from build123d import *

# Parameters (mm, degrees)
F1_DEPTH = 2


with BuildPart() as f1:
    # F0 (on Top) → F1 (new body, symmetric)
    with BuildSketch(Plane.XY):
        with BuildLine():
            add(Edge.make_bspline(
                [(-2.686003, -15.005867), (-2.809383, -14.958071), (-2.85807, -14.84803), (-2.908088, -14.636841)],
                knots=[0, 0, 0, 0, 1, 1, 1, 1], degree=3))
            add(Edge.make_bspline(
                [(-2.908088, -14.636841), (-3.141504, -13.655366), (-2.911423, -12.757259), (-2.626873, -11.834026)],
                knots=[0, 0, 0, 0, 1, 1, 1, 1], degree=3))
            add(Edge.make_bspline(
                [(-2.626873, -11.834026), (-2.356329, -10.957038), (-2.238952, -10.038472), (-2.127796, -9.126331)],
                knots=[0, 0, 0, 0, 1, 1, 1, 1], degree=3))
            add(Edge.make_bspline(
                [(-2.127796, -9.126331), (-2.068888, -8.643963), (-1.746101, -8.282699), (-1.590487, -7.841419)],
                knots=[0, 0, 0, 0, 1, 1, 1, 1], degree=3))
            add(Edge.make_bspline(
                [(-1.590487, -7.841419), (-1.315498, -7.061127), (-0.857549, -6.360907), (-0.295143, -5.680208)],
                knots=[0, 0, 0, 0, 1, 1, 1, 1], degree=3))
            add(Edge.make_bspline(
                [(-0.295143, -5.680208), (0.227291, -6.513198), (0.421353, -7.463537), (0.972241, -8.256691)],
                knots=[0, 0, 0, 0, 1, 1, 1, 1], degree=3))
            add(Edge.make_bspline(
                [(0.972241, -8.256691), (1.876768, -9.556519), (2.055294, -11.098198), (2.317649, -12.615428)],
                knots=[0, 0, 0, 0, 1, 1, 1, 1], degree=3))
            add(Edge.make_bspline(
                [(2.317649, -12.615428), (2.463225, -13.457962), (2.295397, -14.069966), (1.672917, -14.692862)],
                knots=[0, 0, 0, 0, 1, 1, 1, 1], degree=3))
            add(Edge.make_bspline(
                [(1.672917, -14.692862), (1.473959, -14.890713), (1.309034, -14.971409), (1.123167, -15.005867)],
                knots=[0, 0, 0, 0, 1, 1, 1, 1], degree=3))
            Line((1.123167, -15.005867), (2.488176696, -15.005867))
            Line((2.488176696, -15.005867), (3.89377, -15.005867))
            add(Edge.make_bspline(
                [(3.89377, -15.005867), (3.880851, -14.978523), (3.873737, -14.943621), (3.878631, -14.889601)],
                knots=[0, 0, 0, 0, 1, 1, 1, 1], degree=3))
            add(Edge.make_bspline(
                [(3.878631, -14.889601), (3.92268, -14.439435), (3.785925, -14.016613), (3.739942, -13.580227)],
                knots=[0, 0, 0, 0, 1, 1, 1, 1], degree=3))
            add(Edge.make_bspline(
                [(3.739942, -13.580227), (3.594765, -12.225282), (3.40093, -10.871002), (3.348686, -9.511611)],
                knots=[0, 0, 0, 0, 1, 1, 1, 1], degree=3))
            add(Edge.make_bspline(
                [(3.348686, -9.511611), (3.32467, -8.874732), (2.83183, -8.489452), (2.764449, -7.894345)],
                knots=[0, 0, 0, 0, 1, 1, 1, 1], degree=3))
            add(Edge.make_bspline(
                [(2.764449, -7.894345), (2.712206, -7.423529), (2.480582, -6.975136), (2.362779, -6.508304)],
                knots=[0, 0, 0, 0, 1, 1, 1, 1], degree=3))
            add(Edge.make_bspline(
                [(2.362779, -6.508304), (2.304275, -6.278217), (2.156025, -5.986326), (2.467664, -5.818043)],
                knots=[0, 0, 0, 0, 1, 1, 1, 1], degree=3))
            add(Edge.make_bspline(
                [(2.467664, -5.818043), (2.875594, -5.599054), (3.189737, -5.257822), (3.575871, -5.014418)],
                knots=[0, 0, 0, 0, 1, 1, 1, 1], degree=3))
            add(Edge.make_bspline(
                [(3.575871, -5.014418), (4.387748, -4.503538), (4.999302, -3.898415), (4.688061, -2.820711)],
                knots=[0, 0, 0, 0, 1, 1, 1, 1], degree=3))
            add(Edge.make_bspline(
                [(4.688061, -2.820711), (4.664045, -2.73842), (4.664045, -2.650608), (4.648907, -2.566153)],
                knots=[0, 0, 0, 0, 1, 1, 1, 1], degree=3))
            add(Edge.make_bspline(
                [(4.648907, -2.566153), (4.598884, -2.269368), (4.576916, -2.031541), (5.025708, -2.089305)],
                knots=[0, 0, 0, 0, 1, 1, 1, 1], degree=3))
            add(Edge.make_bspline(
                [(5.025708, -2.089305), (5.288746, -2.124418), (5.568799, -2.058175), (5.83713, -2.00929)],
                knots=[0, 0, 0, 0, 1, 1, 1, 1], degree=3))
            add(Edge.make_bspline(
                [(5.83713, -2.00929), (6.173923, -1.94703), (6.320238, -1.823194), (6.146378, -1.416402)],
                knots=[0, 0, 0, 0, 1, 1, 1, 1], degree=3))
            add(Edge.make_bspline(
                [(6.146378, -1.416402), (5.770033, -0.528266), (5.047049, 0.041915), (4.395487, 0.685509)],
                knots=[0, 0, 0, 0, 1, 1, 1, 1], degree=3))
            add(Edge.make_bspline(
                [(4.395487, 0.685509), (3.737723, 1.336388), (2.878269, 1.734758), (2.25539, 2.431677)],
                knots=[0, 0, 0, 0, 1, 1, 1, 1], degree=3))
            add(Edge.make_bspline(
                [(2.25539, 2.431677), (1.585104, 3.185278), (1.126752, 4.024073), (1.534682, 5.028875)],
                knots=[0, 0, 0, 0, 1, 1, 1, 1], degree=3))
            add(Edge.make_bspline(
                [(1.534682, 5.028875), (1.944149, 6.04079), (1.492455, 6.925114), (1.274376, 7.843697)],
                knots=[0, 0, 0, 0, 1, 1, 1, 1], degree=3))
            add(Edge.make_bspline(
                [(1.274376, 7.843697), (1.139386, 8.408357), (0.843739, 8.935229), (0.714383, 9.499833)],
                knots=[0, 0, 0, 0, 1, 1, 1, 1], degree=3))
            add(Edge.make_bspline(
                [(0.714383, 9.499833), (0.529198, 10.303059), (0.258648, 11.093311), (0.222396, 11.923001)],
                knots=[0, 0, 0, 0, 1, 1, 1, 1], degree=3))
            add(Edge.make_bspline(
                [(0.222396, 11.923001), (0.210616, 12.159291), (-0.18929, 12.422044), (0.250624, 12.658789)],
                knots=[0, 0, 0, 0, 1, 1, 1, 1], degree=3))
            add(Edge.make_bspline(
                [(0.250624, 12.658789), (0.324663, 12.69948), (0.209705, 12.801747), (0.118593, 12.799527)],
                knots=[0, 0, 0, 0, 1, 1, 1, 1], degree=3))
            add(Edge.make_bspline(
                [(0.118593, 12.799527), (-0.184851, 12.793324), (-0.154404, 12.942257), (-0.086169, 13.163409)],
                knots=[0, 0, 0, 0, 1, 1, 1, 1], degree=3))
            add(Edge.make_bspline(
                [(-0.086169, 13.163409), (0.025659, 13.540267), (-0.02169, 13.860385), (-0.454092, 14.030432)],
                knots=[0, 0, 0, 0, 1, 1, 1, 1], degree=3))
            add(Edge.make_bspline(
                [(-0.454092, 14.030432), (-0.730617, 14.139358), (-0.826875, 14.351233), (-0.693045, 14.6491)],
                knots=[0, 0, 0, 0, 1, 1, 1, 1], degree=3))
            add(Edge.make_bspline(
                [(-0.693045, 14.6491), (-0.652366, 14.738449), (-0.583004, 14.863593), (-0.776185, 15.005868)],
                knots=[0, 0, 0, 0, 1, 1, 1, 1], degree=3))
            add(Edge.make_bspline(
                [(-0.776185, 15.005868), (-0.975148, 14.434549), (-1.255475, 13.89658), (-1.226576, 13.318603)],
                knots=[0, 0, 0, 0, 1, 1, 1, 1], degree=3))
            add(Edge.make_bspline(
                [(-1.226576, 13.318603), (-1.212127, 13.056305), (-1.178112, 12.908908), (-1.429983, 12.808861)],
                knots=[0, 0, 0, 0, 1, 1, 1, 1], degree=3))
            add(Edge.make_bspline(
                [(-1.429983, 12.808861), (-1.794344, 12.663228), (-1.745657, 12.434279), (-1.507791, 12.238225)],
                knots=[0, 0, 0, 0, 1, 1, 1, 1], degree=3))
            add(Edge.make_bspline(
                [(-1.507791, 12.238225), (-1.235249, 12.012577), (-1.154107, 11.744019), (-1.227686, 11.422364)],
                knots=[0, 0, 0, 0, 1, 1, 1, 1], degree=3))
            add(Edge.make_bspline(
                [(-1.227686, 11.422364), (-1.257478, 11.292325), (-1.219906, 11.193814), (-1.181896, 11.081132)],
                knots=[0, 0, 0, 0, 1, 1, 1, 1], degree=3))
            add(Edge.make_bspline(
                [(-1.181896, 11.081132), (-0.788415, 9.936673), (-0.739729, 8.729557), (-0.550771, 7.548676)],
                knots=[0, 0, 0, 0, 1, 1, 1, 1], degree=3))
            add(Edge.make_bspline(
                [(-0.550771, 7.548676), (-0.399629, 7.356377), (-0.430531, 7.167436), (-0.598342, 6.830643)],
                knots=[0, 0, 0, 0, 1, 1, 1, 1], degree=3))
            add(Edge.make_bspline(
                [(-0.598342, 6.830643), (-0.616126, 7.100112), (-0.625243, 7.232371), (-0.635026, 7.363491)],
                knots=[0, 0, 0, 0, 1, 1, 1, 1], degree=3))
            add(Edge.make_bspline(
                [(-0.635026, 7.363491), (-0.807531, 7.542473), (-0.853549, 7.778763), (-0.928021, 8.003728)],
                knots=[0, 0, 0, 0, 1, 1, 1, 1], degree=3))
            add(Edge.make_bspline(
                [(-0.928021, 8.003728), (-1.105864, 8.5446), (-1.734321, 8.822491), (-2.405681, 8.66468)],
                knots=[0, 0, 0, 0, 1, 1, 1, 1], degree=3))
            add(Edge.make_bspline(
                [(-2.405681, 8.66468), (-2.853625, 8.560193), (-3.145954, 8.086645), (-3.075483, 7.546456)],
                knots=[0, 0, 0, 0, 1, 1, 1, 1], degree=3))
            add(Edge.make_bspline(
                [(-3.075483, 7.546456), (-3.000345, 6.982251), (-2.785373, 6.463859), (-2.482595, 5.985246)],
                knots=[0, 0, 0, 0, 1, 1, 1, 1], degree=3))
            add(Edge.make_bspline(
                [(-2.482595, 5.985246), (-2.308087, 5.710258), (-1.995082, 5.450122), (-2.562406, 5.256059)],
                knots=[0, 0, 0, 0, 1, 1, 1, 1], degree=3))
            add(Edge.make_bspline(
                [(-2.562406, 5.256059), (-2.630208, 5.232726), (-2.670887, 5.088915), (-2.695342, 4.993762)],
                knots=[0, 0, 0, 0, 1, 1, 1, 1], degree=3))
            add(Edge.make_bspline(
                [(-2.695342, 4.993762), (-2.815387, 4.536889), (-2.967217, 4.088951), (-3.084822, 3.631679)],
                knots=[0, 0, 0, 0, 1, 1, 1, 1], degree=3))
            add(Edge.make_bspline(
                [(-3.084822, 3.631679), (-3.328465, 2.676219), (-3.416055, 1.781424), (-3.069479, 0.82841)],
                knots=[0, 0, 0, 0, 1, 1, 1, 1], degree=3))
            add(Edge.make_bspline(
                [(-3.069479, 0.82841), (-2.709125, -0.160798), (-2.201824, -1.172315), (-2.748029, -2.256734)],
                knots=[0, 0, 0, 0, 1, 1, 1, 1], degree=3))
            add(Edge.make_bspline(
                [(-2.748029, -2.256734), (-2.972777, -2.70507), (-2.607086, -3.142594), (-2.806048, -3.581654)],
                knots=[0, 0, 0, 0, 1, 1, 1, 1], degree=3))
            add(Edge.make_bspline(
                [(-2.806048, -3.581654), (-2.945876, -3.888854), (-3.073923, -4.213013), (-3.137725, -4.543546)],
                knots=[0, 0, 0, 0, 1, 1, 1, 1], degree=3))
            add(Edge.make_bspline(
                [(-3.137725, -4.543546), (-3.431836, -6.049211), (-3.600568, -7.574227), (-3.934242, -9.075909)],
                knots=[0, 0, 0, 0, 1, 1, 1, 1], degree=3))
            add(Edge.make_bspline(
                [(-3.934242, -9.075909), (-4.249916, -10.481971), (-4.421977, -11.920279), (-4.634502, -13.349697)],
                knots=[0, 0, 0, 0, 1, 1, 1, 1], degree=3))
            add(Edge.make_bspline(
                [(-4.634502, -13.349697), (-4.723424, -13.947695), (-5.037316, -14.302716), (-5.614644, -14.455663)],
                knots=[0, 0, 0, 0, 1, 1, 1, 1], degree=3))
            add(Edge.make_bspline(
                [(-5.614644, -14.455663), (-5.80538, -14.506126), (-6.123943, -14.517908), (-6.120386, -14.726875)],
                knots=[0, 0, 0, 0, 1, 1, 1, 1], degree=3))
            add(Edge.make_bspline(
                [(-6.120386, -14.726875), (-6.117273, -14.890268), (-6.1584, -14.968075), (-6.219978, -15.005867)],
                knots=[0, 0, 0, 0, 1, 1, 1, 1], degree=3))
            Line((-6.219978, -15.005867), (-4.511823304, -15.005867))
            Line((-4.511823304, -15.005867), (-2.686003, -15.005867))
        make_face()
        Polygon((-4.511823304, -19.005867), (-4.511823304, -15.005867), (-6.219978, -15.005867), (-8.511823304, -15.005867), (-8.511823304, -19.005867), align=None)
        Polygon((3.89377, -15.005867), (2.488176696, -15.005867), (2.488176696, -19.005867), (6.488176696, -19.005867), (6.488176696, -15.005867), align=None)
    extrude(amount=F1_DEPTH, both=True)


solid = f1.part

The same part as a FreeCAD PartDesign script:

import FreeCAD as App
import Part
import Sketcher

doc = App.newDocument("Part")
params = doc.addObject("Spreadsheet::Sheet", "Params")
for row, (alias, value) in enumerate([
    ("sketch1_width", "4 mm"),
    ("pad1_length", "4 mm"),
], start=1):
    params.set(f"A{row}", alias)
    params.set(f"B{row}", "=" + value)
    params.setAlias(f"B{row}", alias)

body = doc.addObject("PartDesign::Body", "Body")

sketch1 = body.newObject("Sketcher::SketchObject", "Sketch")
sketch1.AttachmentSupport = (doc.getObject("XY_Plane"), [""])
sketch1.MapMode = "FlatFace"
sketch1.addGeometry([
    Part.BSplineCurve([App.Vector(-2.686003, -15.005867, 0), App.Vector(-2.809383, -14.958071, 0), App.Vector(-2.85807, -14.84803, 0), App.Vector(-2.908088, -14.636841, 0)], [4, 4], [0, 1], False, 3, [1, 1, 1, 1], False),
    Part.BSplineCurve([App.Vector(-2.908088, -14.636841, 0), App.Vector(-3.141504, -13.655366, 0), App.Vector(-2.911423, -12.757259, 0), App.Vector(-2.626873, -11.834026, 0)], [4, 4], [0, 1], False, 3, [1, 1, 1, 1], False),
    Part.BSplineCurve([App.Vector(-2.626873, -11.834026, 0), App.Vector(-2.356329, -10.957038, 0), App.Vector(-2.238952, -10.038472, 0), App.Vector(-2.127796, -9.126331, 0)], [4, 4], [0, 1], False, 3, [1, 1, 1, 1], False),
    Part.BSplineCurve([App.Vector(-2.127796, -9.126331, 0), App.Vector(-2.068888, -8.643963, 0), App.Vector(-1.746101, -8.282699, 0), App.Vector(-1.590487, -7.841419, 0)], [4, 4], [0, 1], False, 3, [1, 1, 1, 1], False),
    Part.BSplineCurve([App.Vector(-1.590487, -7.841419, 0), App.Vector(-1.315498, -7.061127, 0), App.Vector(-0.857549, -6.360907, 0), App.Vector(-0.295143, -5.680208, 0)], [4, 4], [0, 1], False, 3, [1, 1, 1, 1], False),
    Part.BSplineCurve([App.Vector(-0.295143, -5.680208, 0), App.Vector(0.227291, -6.513198, 0), App.Vector(0.421353, -7.463537, 0), App.Vector(0.972241, -8.256691, 0)], [4, 4], [0, 1], False, 3, [1, 1, 1, 1], False),
    Part.BSplineCurve([App.Vector(0.972241, -8.256691, 0), App.Vector(1.876768, -9.556519, 0), App.Vector(2.055294, -11.098198, 0), App.Vector(2.317649, -12.615428, 0)], [4, 4], [0, 1], False, 3, [1, 1, 1, 1], False),
    Part.BSplineCurve([App.Vector(2.317649, -12.615428, 0), App.Vector(2.463225, -13.457962, 0), App.Vector(2.295397, -14.069966, 0), App.Vector(1.672917, -14.692862, 0)], [4, 4], [0, 1], False, 3, [1, 1, 1, 1], False),
    Part.BSplineCurve([App.Vector(1.672917, -14.692862, 0), App.Vector(1.473959, -14.890713, 0), App.Vector(1.309034, -14.971409, 0), App.Vector(1.123167, -15.005867, 0)], [4, 4], [0, 1], False, 3, [1, 1, 1, 1], False),
    Part.LineSegment(App.Vector(1.123167, -15.005867, 0), App.Vector(2.488177, -15.005867, 0)),
    Part.LineSegment(App.Vector(2.488177, -15.005867, 0), App.Vector(2.488177, -19.005867, 0)),
    Part.LineSegment(App.Vector(2.488177, -19.005867, 0), App.Vector(6.488177, -19.005867, 0)),
    Part.LineSegment(App.Vector(6.488177, -19.005867, 0), App.Vector(6.488177, -15.005867, 0)),
    Part.LineSegment(App.Vector(6.488177, -15.005867, 0), App.Vector(3.89377, -15.005867, 0)),
    Part.BSplineCurve([App.Vector(3.89377, -15.005867, 0), App.Vector(3.880851, -14.978523, 0), App.Vector(3.873737, -14.943621, 0), App.Vector(3.878631, -14.889601, 0)], [4, 4], [0, 1], False, 3, [1, 1, 1, 1], False),
    Part.BSplineCurve([App.Vector(3.878631, -14.889601, 0), App.Vector(3.92268, -14.439435, 0), App.Vector(3.785925, -14.016613, 0), App.Vector(3.739942, -13.580227, 0)], [4, 4], [0, 1], False, 3, [1, 1, 1, 1], False),
    Part.BSplineCurve([App.Vector(3.739942, -13.580227, 0), App.Vector(3.594765, -12.225282, 0), App.Vector(3.40093, -10.871002, 0), App.Vector(3.348686, -9.511611, 0)], [4, 4], [0, 1], False, 3, [1, 1, 1, 1], False),
    Part.BSplineCurve([App.Vector(3.348686, -9.511611, 0), App.Vector(3.32467, -8.874732, 0), App.Vector(2.83183, -8.489452, 0), App.Vector(2.764449, -7.894345, 0)], [4, 4], [0, 1], False, 3, [1, 1, 1, 1], False),
    Part.BSplineCurve([App.Vector(2.764449, -7.894345, 0), App.Vector(2.712206, -7.423529, 0), App.Vector(2.480582, -6.975136, 0), App.Vector(2.362779, -6.508304, 0)], [4, 4], [0, 1], False, 3, [1, 1, 1, 1], False),
    Part.BSplineCurve([App.Vector(2.362779, -6.508304, 0), App.Vector(2.304275, -6.278217, 0), App.Vector(2.156025, -5.986326, 0), App.Vector(2.467664, -5.818043, 0)], [4, 4], [0, 1], False, 3, [1, 1, 1, 1], False),
    Part.BSplineCurve([App.Vector(2.467664, -5.818043, 0), App.Vector(2.875594, -5.599054, 0), App.Vector(3.189737, -5.257822, 0), App.Vector(3.575871, -5.014418, 0)], [4, 4], [0, 1], False, 3, [1, 1, 1, 1], False),
    Part.BSplineCurve([App.Vector(3.575871, -5.014418, 0), App.Vector(4.387748, -4.503538, 0), App.Vector(4.999302, -3.898415, 0), App.Vector(4.688061, -2.820711, 0)], [4, 4], [0, 1], False, 3, [1, 1, 1, 1], False),
    Part.BSplineCurve([App.Vector(4.688061, -2.820711, 0), App.Vector(4.664045, -2.73842, 0), App.Vector(4.664045, -2.650608, 0), App.Vector(4.648907, -2.566153, 0)], [4, 4], [0, 1], False, 3, [1, 1, 1, 1], False),
    Part.BSplineCurve([App.Vector(4.648907, -2.566153, 0), App.Vector(4.598884, -2.269368, 0), App.Vector(4.576916, -2.031541, 0), App.Vector(5.025708, -2.089305, 0)], [4, 4], [0, 1], False, 3, [1, 1, 1, 1], False),
    Part.BSplineCurve([App.Vector(5.025708, -2.089305, 0), App.Vector(5.288746, -2.124418, 0), App.Vector(5.568799, -2.058175, 0), App.Vector(5.83713, -2.00929, 0)], [4, 4], [0, 1], False, 3, [1, 1, 1, 1], False),
    Part.BSplineCurve([App.Vector(5.83713, -2.00929, 0), App.Vector(6.173923, -1.94703, 0), App.Vector(6.320238, -1.823194, 0), App.Vector(6.146378, -1.416402, 0)], [4, 4], [0, 1], False, 3, [1, 1, 1, 1], False),
    Part.BSplineCurve([App.Vector(6.146378, -1.416402, 0), App.Vector(5.770033, -0.528266, 0), App.Vector(5.047049, 0.041915, 0), App.Vector(4.395487, 0.685509, 0)], [4, 4], [0, 1], False, 3, [1, 1, 1, 1], False),
    Part.BSplineCurve([App.Vector(4.395487, 0.685509, 0), App.Vector(3.737723, 1.336388, 0), App.Vector(2.878269, 1.734758, 0), App.Vector(2.25539, 2.431677, 0)], [4, 4], [0, 1], False, 3, [1, 1, 1, 1], False),
    Part.BSplineCurve([App.Vector(2.25539, 2.431677, 0), App.Vector(1.585104, 3.185278, 0), App.Vector(1.126752, 4.024073, 0), App.Vector(1.534682, 5.028875, 0)], [4, 4], [0, 1], False, 3, [1, 1, 1, 1], False),
    Part.BSplineCurve([App.Vector(1.534682, 5.028875, 0), App.Vector(1.944149, 6.04079, 0), App.Vector(1.492455, 6.925114, 0), App.Vector(1.274376, 7.843697, 0)], [4, 4], [0, 1], False, 3, [1, 1, 1, 1], False),
    Part.BSplineCurve([App.Vector(1.274376, 7.843697, 0), App.Vector(1.139386, 8.408357, 0), App.Vector(0.843739, 8.935229, 0), App.Vector(0.714383, 9.499833, 0)], [4, 4], [0, 1], False, 3, [1, 1, 1, 1], False),
    Part.BSplineCurve([App.Vector(0.714383, 9.499833, 0), App.Vector(0.529198, 10.303059, 0), App.Vector(0.258648, 11.093311, 0), App.Vector(0.222396, 11.923001, 0)], [4, 4], [0, 1], False, 3, [1, 1, 1, 1], False),
    Part.BSplineCurve([App.Vector(0.222396, 11.923001, 0), App.Vector(0.210616, 12.159291, 0), App.Vector(-0.18929, 12.422044, 0), App.Vector(0.250624, 12.658789, 0)], [4, 4], [0, 1], False, 3, [1, 1, 1, 1], False),
    Part.BSplineCurve([App.Vector(0.250624, 12.658789, 0), App.Vector(0.324663, 12.69948, 0), App.Vector(0.209705, 12.801747, 0), App.Vector(0.118593, 12.799527, 0)], [4, 4], [0, 1], False, 3, [1, 1, 1, 1], False),
    Part.BSplineCurve([App.Vector(0.118593, 12.799527, 0), App.Vector(-0.184851, 12.793324, 0), App.Vector(-0.154404, 12.942257, 0), App.Vector(-0.086169, 13.163409, 0)], [4, 4], [0, 1], False, 3, [1, 1, 1, 1], False),
    Part.BSplineCurve([App.Vector(-0.086169, 13.163409, 0), App.Vector(0.025659, 13.540267, 0), App.Vector(-0.02169, 13.860385, 0), App.Vector(-0.454092, 14.030432, 0)], [4, 4], [0, 1], False, 3, [1, 1, 1, 1], False),
    Part.BSplineCurve([App.Vector(-0.454092, 14.030432, 0), App.Vector(-0.730617, 14.139358, 0), App.Vector(-0.826875, 14.351233, 0), App.Vector(-0.693045, 14.6491, 0)], [4, 4], [0, 1], False, 3, [1, 1, 1, 1], False),
    Part.BSplineCurve([App.Vector(-0.693045, 14.6491, 0), App.Vector(-0.652366, 14.738449, 0), App.Vector(-0.583004, 14.863593, 0), App.Vector(-0.776185, 15.005868, 0)], [4, 4], [0, 1], False, 3, [1, 1, 1, 1], False),
    Part.BSplineCurve([App.Vector(-0.776185, 15.005868, 0), App.Vector(-0.975148, 14.434549, 0), App.Vector(-1.255475, 13.89658, 0), App.Vector(-1.226576, 13.318603, 0)], [4, 4], [0, 1], False, 3, [1, 1, 1, 1], False),
    Part.BSplineCurve([App.Vector(-1.226576, 13.318603, 0), App.Vector(-1.212127, 13.056305, 0), App.Vector(-1.178112, 12.908908, 0), App.Vector(-1.429983, 12.808861, 0)], [4, 4], [0, 1], False, 3, [1, 1, 1, 1], False),
    Part.BSplineCurve([App.Vector(-1.429983, 12.808861, 0), App.Vector(-1.794344, 12.663228, 0), App.Vector(-1.745657, 12.434279, 0), App.Vector(-1.507791, 12.238225, 0)], [4, 4], [0, 1], False, 3, [1, 1, 1, 1], False),
    Part.BSplineCurve([App.Vector(-1.507791, 12.238225, 0), App.Vector(-1.235249, 12.012577, 0), App.Vector(-1.154107, 11.744019, 0), App.Vector(-1.227686, 11.422364, 0)], [4, 4], [0, 1], False, 3, [1, 1, 1, 1], False),
    Part.BSplineCurve([App.Vector(-1.227686, 11.422364, 0), App.Vector(-1.257478, 11.292325, 0), App.Vector(-1.219906, 11.193814, 0), App.Vector(-1.181896, 11.081132, 0)], [4, 4], [0, 1], False, 3, [1, 1, 1, 1], False),
    Part.BSplineCurve([App.Vector(-1.181896, 11.081132, 0), App.Vector(-0.788415, 9.936673, 0), App.Vector(-0.739729, 8.729557, 0), App.Vector(-0.550771, 7.548676, 0)], [4, 4], [0, 1], False, 3, [1, 1, 1, 1], False),
    Part.BSplineCurve([App.Vector(-0.550771, 7.548676, 0), App.Vector(-0.399629, 7.356377, 0), App.Vector(-0.430531, 7.167436, 0), App.Vector(-0.598342, 6.830643, 0)], [4, 4], [0, 1], False, 3, [1, 1, 1, 1], False),
    Part.BSplineCurve([App.Vector(-0.598342, 6.830643, 0), App.Vector(-0.616126, 7.100112, 0), App.Vector(-0.625243, 7.232371, 0), App.Vector(-0.635026, 7.363491, 0)], [4, 4], [0, 1], False, 3, [1, 1, 1, 1], False),
    Part.BSplineCurve([App.Vector(-0.635026, 7.363491, 0), App.Vector(-0.807531, 7.542473, 0), App.Vector(-0.853549, 7.778763, 0), App.Vector(-0.928021, 8.003728, 0)], [4, 4], [0, 1], False, 3, [1, 1, 1, 1], False),
    Part.BSplineCurve([App.Vector(-0.928021, 8.003728, 0), App.Vector(-1.105864, 8.5446, 0), App.Vector(-1.734321, 8.822491, 0), App.Vector(-2.405681, 8.66468, 0)], [4, 4], [0, 1], False, 3, [1, 1, 1, 1], False),
    Part.BSplineCurve([App.Vector(-2.405681, 8.66468, 0), App.Vector(-2.853625, 8.560193, 0), App.Vector(-3.145954, 8.086645, 0), App.Vector(-3.075483, 7.546456, 0)], [4, 4], [0, 1], False, 3, [1, 1, 1, 1], False),
    Part.BSplineCurve([App.Vector(-3.075483, 7.546456, 0), App.Vector(-3.000345, 6.982251, 0), App.Vector(-2.785373, 6.463859, 0), App.Vector(-2.482595, 5.985246, 0)], [4, 4], [0, 1], False, 3, [1, 1, 1, 1], False),
    Part.BSplineCurve([App.Vector(-2.482595, 5.985246, 0), App.Vector(-2.308087, 5.710258, 0), App.Vector(-1.995082, 5.450122, 0), App.Vector(-2.562406, 5.256059, 0)], [4, 4], [0, 1], False, 3, [1, 1, 1, 1], False),
    Part.BSplineCurve([App.Vector(-2.562406, 5.256059, 0), App.Vector(-2.630208, 5.232726, 0), App.Vector(-2.670887, 5.088915, 0), App.Vector(-2.695342, 4.993762, 0)], [4, 4], [0, 1], False, 3, [1, 1, 1, 1], False),
    Part.BSplineCurve([App.Vector(-2.695342, 4.993762, 0), App.Vector(-2.815387, 4.536889, 0), App.Vector(-2.967217, 4.088951, 0), App.Vector(-3.084822, 3.631679, 0)], [4, 4], [0, 1], False, 3, [1, 1, 1, 1], False),
    Part.BSplineCurve([App.Vector(-3.084822, 3.631679, 0), App.Vector(-3.328465, 2.676219, 0), App.Vector(-3.416055, 1.781424, 0), App.Vector(-3.069479, 0.82841, 0)], [4, 4], [0, 1], False, 3, [1, 1, 1, 1], False),
    Part.BSplineCurve([App.Vector(-3.069479, 0.82841, 0), App.Vector(-2.709125, -0.160798, 0), App.Vector(-2.201824, -1.172315, 0), App.Vector(-2.748029, -2.256734, 0)], [4, 4], [0, 1], False, 3, [1, 1, 1, 1], False),
    Part.BSplineCurve([App.Vector(-2.748029, -2.256734, 0), App.Vector(-2.972777, -2.70507, 0), App.Vector(-2.607086, -3.142594, 0), App.Vector(-2.806048, -3.581654, 0)], [4, 4], [0, 1], False, 3, [1, 1, 1, 1], False),
    Part.BSplineCurve([App.Vector(-2.806048, -3.581654, 0), App.Vector(-2.945876, -3.888854, 0), App.Vector(-3.073923, -4.213013, 0), App.Vector(-3.137725, -4.543546, 0)], [4, 4], [0, 1], False, 3, [1, 1, 1, 1], False),
    Part.BSplineCurve([App.Vector(-3.137725, -4.543546, 0), App.Vector(-3.431836, -6.049211, 0), App.Vector(-3.600568, -7.574227, 0), App.Vector(-3.934242, -9.075909, 0)], [4, 4], [0, 1], False, 3, [1, 1, 1, 1], False),
    Part.BSplineCurve([App.Vector(-3.934242, -9.075909, 0), App.Vector(-4.249916, -10.481971, 0), App.Vector(-4.421977, -11.920279, 0), App.Vector(-4.634502, -13.349697, 0)], [4, 4], [0, 1], False, 3, [1, 1, 1, 1], False),
    Part.BSplineCurve([App.Vector(-4.634502, -13.349697, 0), App.Vector(-4.723424, -13.947695, 0), App.Vector(-5.037316, -14.302716, 0), App.Vector(-5.614644, -14.455663, 0)], [4, 4], [0, 1], False, 3, [1, 1, 1, 1], False),
    Part.BSplineCurve([App.Vector(-5.614644, -14.455663, 0), App.Vector(-5.80538, -14.506126, 0), App.Vector(-6.123943, -14.517908, 0), App.Vector(-6.120386, -14.726875, 0)], [4, 4], [0, 1], False, 3, [1, 1, 1, 1], False),
    Part.BSplineCurve([App.Vector(-6.120386, -14.726875, 0), App.Vector(-6.117273, -14.890268, 0), App.Vector(-6.1584, -14.968075, 0), App.Vector(-6.219978, -15.005867, 0)], [4, 4], [0, 1], False, 3, [1, 1, 1, 1], False),
    Part.LineSegment(App.Vector(-6.219978, -15.005867, 0), App.Vector(-8.511823, -15.005867, 0)),
    Part.LineSegment(App.Vector(-8.511823, -15.005867, 0), App.Vector(-8.511823, -19.005867, 0)),
    Part.LineSegment(App.Vector(-8.511823, -19.005867, 0), App.Vector(-4.511823, -19.005867, 0)),
    Part.LineSegment(App.Vector(-4.511823, -19.005867, 0), App.Vector(-4.511823, -15.005867, 0)),
    Part.LineSegment(App.Vector(-4.511823, -15.005867, 0), App.Vector(-2.686003, -15.005867, 0)),
], False)
sketch1.addConstraint([
    Sketcher.Constraint("Block", 0),
    Sketcher.Constraint("Block", 1),
    Sketcher.Constraint("Block", 2),
    Sketcher.Constraint("Block", 3),
    Sketcher.Constraint("Block", 4),
    Sketcher.Constraint("Block", 5),
    Sketcher.Constraint("Block", 6),
    Sketcher.Constraint("Block", 7),
    Sketcher.Constraint("Block", 8),
    Sketcher.Constraint("Block", 14),
    Sketcher.Constraint("Block", 15),
    Sketcher.Constraint("Block", 16),
    Sketcher.Constraint("Block", 17),
    Sketcher.Constraint("Block", 18),
    Sketcher.Constraint("Block", 19),
    Sketcher.Constraint("Block", 20),
    Sketcher.Constraint("Block", 21),
    Sketcher.Constraint("Block", 22),
    Sketcher.Constraint("Block", 23),
    Sketcher.Constraint("Block", 24),
    Sketcher.Constraint("Block", 25),
    Sketcher.Constraint("Block", 26),
    Sketcher.Constraint("Block", 27),
    Sketcher.Constraint("Block", 28),
    Sketcher.Constraint("Block", 29),
    Sketcher.Constraint("Block", 30),
    Sketcher.Constraint("Block", 31),
    Sketcher.Constraint("Block", 32),
    Sketcher.Constraint("Block", 33),
    Sketcher.Constraint("Block", 34),
    Sketcher.Constraint("Block", 35),
    Sketcher.Constraint("Block", 36),
    Sketcher.Constraint("Block", 37),
    Sketcher.Constraint("Block", 38),
    Sketcher.Constraint("Block", 39),
    Sketcher.Constraint("Block", 40),
    Sketcher.Constraint("Block", 41),
    Sketcher.Constraint("Block", 42),
    Sketcher.Constraint("Block", 43),
    Sketcher.Constraint("Block", 44),
    Sketcher.Constraint("Block", 45),
    Sketcher.Constraint("Block", 46),
    Sketcher.Constraint("Block", 47),
    Sketcher.Constraint("Block", 48),
    Sketcher.Constraint("Block", 49),
    Sketcher.Constraint("Block", 50),
    Sketcher.Constraint("Block", 51),
    Sketcher.Constraint("Block", 52),
    Sketcher.Constraint("Block", 53),
    Sketcher.Constraint("Block", 54),
    Sketcher.Constraint("Block", 55),
    Sketcher.Constraint("Block", 56),
    Sketcher.Constraint("Block", 57),
    Sketcher.Constraint("Block", 58),
    Sketcher.Constraint("Block", 59),
    Sketcher.Constraint("Block", 60),
    Sketcher.Constraint("Block", 61),
    Sketcher.Constraint("Coincident", 8, 2, 9, 1),
    Sketcher.Constraint("Coincident", 9, 2, 10, 1),
    Sketcher.Constraint("Coincident", 10, 2, 11, 1),
    Sketcher.Constraint("Coincident", 11, 2, 12, 1),
    Sketcher.Constraint("Coincident", 12, 2, 13, 1),
    Sketcher.Constraint("Coincident", 13, 2, 14, 1),
    Sketcher.Constraint("Coincident", 61, 2, 62, 1),
    Sketcher.Constraint("Coincident", 62, 2, 63, 1),
    Sketcher.Constraint("Coincident", 63, 2, 64, 1),
    Sketcher.Constraint("Coincident", 64, 2, 65, 1),
    Sketcher.Constraint("Coincident", 65, 2, 66, 1),
    Sketcher.Constraint("Coincident", 66, 2, 0, 1),
    Sketcher.Constraint("Horizontal", 9),
    Sketcher.Constraint("Vertical", 10),
    Sketcher.Constraint("Horizontal", 11),
    Sketcher.Constraint("Vertical", 12),
    Sketcher.Constraint("Horizontal", 13),
    Sketcher.Constraint("Horizontal", 62),
    Sketcher.Constraint("Vertical", 63),
    Sketcher.Constraint("Horizontal", 64),
    Sketcher.Constraint("Vertical", 65),
    Sketcher.Constraint("Horizontal", 66),
    Sketcher.Constraint("Horizontal", 11, 2, 63, 2),
    Sketcher.Constraint("Equal", 11, 64),
    Sketcher.Constraint("Equal", 64, 10),
    Sketcher.Constraint("DistanceX", 11, 1, 11, 2, 4.0),
    Sketcher.Constraint("DistanceX", 62, 2, 9, 2, 11.0),
    Sketcher.Constraint("DistanceX", 9, 1, 9, 2, 1.36501),
])
sketch1.setExpression("Constraints[82]", "Params.sketch1_width")
pad1 = body.newObject("PartDesign::Pad", "Pad")
pad1.Profile = sketch1
pad1.setExpression("Length", "Params.pad1_length")
pad1.Midplane = True

doc.recompute()
